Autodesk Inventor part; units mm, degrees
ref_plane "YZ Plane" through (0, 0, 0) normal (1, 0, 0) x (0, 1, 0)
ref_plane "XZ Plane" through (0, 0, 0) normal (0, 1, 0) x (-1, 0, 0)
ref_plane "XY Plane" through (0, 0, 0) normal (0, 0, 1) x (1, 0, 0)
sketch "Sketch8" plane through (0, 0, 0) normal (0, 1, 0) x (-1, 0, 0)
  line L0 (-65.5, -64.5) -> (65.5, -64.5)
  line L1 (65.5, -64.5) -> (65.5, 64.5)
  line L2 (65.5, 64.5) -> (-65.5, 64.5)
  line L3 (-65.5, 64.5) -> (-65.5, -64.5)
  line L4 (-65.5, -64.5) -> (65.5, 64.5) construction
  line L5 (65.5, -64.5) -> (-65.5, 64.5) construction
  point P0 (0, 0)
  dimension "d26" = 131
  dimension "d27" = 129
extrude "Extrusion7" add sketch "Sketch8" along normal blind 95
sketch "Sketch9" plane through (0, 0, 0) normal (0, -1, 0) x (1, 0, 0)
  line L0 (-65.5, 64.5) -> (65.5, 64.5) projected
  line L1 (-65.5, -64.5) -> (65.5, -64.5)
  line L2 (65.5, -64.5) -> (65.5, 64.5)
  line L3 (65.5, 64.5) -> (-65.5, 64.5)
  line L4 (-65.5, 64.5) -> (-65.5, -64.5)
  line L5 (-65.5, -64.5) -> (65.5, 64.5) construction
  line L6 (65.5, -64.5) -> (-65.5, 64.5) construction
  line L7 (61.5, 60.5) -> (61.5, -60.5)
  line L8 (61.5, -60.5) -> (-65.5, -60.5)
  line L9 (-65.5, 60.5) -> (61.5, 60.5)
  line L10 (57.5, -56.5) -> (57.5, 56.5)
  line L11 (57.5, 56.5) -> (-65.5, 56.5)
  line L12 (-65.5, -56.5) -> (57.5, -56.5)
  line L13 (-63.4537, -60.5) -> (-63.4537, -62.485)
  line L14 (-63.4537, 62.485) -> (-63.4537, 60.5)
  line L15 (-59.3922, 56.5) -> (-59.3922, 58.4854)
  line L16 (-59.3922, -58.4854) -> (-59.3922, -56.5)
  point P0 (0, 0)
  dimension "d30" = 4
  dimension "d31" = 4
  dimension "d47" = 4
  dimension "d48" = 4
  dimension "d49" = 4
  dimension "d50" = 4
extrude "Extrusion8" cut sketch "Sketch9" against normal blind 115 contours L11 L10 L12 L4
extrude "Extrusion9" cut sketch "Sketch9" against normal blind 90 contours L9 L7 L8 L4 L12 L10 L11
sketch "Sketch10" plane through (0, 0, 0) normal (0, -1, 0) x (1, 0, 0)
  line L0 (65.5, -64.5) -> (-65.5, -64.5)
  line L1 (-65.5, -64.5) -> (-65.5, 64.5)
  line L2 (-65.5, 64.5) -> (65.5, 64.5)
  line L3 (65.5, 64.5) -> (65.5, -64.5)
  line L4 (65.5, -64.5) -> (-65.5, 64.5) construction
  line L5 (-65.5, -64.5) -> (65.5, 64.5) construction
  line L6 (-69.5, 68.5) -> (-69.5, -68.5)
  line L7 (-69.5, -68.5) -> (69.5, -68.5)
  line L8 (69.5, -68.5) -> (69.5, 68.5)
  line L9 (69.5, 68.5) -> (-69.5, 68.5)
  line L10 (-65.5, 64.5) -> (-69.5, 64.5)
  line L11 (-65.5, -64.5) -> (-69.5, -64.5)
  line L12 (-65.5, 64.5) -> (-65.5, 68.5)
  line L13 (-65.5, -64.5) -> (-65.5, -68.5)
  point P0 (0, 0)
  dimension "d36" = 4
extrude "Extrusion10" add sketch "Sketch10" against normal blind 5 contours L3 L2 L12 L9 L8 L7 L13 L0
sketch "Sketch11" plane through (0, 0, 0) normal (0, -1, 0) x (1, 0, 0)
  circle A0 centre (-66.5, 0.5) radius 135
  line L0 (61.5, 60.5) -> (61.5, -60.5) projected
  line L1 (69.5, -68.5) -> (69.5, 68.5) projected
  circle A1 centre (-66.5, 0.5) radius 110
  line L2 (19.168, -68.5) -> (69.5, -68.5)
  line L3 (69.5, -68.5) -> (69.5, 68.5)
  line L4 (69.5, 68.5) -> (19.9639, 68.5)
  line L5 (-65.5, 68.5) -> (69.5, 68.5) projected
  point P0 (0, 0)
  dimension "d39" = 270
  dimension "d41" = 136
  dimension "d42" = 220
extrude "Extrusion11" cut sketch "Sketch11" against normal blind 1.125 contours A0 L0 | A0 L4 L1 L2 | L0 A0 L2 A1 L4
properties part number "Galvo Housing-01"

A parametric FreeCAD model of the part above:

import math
import FreeCAD as App
import Part
import Sketcher

V = App.Vector

doc = App.newDocument("Part")
body = doc.addObject("PartDesign::Body", "Body")

# Sketch on XZ plane
sketch1 = doc.addObject("Sketcher::SketchObject", "Sketch")
body.addObject(sketch1)
sketch1.AttachmentSupport = (doc.XZ_Plane, [""])
sketch1.MapMode = "FlatFace"
sketch1.addGeometry(Part.LineSegment(V(66, 64, 0), V(66, -64, 0)), False)
sketch1.addGeometry(Part.LineSegment(V(66, -64, 0), V(-66, -64, 0)), False)
sketch1.addGeometry(Part.LineSegment(V(-66, -64, 0), V(-66, 64, 0)), False)
sketch1.addGeometry(Part.LineSegment(V(-66, 64, 0), V(66, 64, 0)), False)
sketch1.addConstraint(Sketcher.Constraint("Coincident", 0, 2, 1, 1))
sketch1.addConstraint(Sketcher.Constraint("Coincident", 1, 2, 2, 1))
sketch1.addConstraint(Sketcher.Constraint("Coincident", 2, 2, 3, 1))
sketch1.addConstraint(Sketcher.Constraint("Coincident", 3, 2, 0, 1))
sketch1.addConstraint(Sketcher.Constraint("Vertical", 0))
sketch1.addConstraint(Sketcher.Constraint("Horizontal", 1))
sketch1.addConstraint(Sketcher.Constraint("Vertical", 2))
sketch1.addConstraint(Sketcher.Constraint("Horizontal", 3))
sketch1.addConstraint(Sketcher.Constraint("Symmetric", 0, 2, 2, 2, -1, 1))
sketch1.addConstraint(Sketcher.Constraint("DistanceX", 1, 2, 1, 1, 131.0))
sketch1.addConstraint(Sketcher.Constraint("DistanceY", 0, 2, 0, 1, 129.0))
pad1 = doc.addObject("PartDesign::Pad", "Pad")
body.addObject(pad1)
pad1.Profile = sketch1
pad1.Length = 95
pad1.Reversed = True

# Sketch on XZ plane
sketch2 = doc.addObject("Sketcher::SketchObject", "Sketch001")
body.addObject(sketch2)
sketch2.AttachmentSupport = (doc.XZ_Plane, [""])
sketch2.MapMode = "FlatFace"
sketch2.addGeometry(Part.LineSegment(V(58, 56, 0), V(-66, 56, 0)), False)
sketch2.addGeometry(Part.LineSegment(V(-66, 56, 0), V(-66, -56, 0)), False)
sketch2.addGeometry(Part.LineSegment(V(-66, -56, 0), V(58, -56, 0)), False)
sketch2.addGeometry(Part.LineSegment(V(58, -56, 0), V(58, 56, 0)), False)
sketch2.addConstraint(Sketcher.Constraint("Coincident", 0, 2, 1, 1))
sketch2.addConstraint(Sketcher.Constraint("Coincident", 1, 2, 2, 1))
sketch2.addConstraint(Sketcher.Constraint("Coincident", 2, 2, 3, 1))
sketch2.addConstraint(Sketcher.Constraint("Coincident", 3, 2, 0, 1))
sketch2.addConstraint(Sketcher.Constraint("Horizontal", 0))
sketch2.addConstraint(Sketcher.Constraint("Vertical", 1))
sketch2.addConstraint(Sketcher.Constraint("Horizontal", 2))
sketch2.addConstraint(Sketcher.Constraint("Vertical", 3))
sketch2.addConstraint(Sketcher.Constraint("DistanceX", 0, 2, 0, 1, 123.0))
sketch2.addConstraint(Sketcher.Constraint("DistanceY", 1, 2, 1, 1, 113.0))
sketch2.addConstraint(Sketcher.Constraint("DistanceX", 0, 2, -1, 1, 65.5))
sketch2.addConstraint(Sketcher.Constraint("DistanceY", -1, 1, 0, 2, 56.5))
pocket1 = doc.addObject("PartDesign::Pocket", "Pocket")
body.addObject(pocket1)
pocket1.Profile = sketch2
pocket1.Length = 115

# Sketch on XZ plane
sketch3 = doc.addObject("Sketcher::SketchObject", "Sketch002")
body.addObject(sketch3)
sketch3.AttachmentSupport = (doc.XZ_Plane, [""])
sketch3.MapMode = "FlatFace"
sketch3.addGeometry(Part.LineSegment(V(61.5, 60.5, 0), V(-65.5, 60.5, 0)), False)
sketch3.addGeometry(Part.LineSegment(V(-65.5, 60.5, 0), V(-65.5, 56.5, 0)), False)
sketch3.addGeometry(Part.LineSegment(V(-65.5, 56.5, 0), V(57.5, 56.5, 0)), False)
sketch3.addGeometry(Part.LineSegment(V(57.5, 56.5, 0), V(57.5, -56.5, 0)), False)
sketch3.addGeometry(Part.LineSegment(V(57.5, -56.5, 0), V(-65.5, -56.5, 0)), False)
sketch3.addGeometry(Part.LineSegment(V(-65.5, -56.5, 0), V(-65.5, -60.5, 0)), False)
sketch3.addGeometry(Part.LineSegment(V(-65.5, -60.5, 0), V(61.5, -60.5, 0)), False)
sketch3.addGeometry(Part.LineSegment(V(61.5, -60.5, 0), V(61.5, 60.5, 0)), False)
sketch3.addConstraint(Sketcher.Constraint("Coincident", 0, 2, 1, 1))
sketch3.addConstraint(Sketcher.Constraint("Coincident", 1, 2, 2, 1))
sketch3.addConstraint(Sketcher.Constraint("Coincident", 2, 2, 3, 1))
sketch3.addConstraint(Sketcher.Constraint("Coincident", 3, 2, 4, 1))
sketch3.addConstraint(Sketcher.Constraint("Coincident", 4, 2, 5, 1))
sketch3.addConstraint(Sketcher.Constraint("Coincident", 5, 2, 6, 1))
sketch3.addConstraint(Sketcher.Constraint("Coincident", 6, 2, 7, 1))
sketch3.addConstraint(Sketcher.Constraint("Coincident", 7, 2, 0, 1))
sketch3.addConstraint(Sketcher.Constraint("Horizontal", 0))
sketch3.addConstraint(Sketcher.Constraint("Vertical", 1))
sketch3.addConstraint(Sketcher.Constraint("Horizontal", 2))
sketch3.addConstraint(Sketcher.Constraint("Vertical", 3))
sketch3.addConstraint(Sketcher.Constraint("Horizontal", 4))
sketch3.addConstraint(Sketcher.Constraint("Vertical", 5))
sketch3.addConstraint(Sketcher.Constraint("Horizontal", 6))
sketch3.addConstraint(Sketcher.Constraint("Vertical", 7))
sketch3.addConstraint(Sketcher.Constraint("Symmetric", 1, 2, 4, 2, -1))
sketch3.addConstraint(Sketcher.Constraint("Equal", 1, 5))
sketch3.addConstraint(Sketcher.Constraint("DistanceY", 1, 2, 1, 1, 4.0))
sketch3.addConstraint(Sketcher.Constraint("DistanceX", 3, 2, 6, 2, 4.0))
sketch3.addConstraint(Sketcher.Constraint("DistanceX", 0, 2, 0, 1, 127.0))
sketch3.addConstraint(Sketcher.Constraint("DistanceY", 3, 2, 3, 1, 113.0))
sketch3.addConstraint(Sketcher.Constraint("DistanceX", 0, 2, -1, 1, 65.5))
pocket2 = doc.addObject("PartDesign::Pocket", "Pocket001")
body.addObject(pocket2)
pocket2.Profile = sketch3
pocket2.Length = 90

# Sketch on XZ plane
sketch4 = doc.addObject("Sketcher::SketchObject", "Sketch003")
body.addObject(sketch4)
sketch4.AttachmentSupport = (doc.XZ_Plane, [""])
sketch4.MapMode = "FlatFace"
sketch4.addGeometry(Part.LineSegment(V(65.5, 64.5, 0), V(65.5, -64.5, 0)), False)
sketch4.addGeometry(Part.LineSegment(V(65.5, -64.5, 0), V(-65.5, -64.5, 0)), False)
sketch4.addGeometry(Part.LineSegment(V(-65.5, -64.5, 0), V(-65.5, -68.5, 0)), False)
sketch4.addGeometry(Part.LineSegment(V(-65.5, -68.5, 0), V(69.5, -68.5, 0)), False)
sketch4.addGeometry(Part.LineSegment(V(69.5, -68.5, 0), V(69.5, 68.5, 0)), False)
sketch4.addGeometry(Part.LineSegment(V(69.5, 68.5, 0), V(-65.5, 68.5, 0)), False)
sketch4.addGeometry(Part.LineSegment(V(-65.5, 68.5, 0), V(-65.5, 64.5, 0)), False)
sketch4.addGeometry(Part.LineSegment(V(-65.5, 64.5, 0), V(65.5, 64.5, 0)), False)
sketch4.addConstraint(Sketcher.Constraint("Coincident", 0, 2, 1, 1))
sketch4.addConstraint(Sketcher.Constraint("Coincident", 1, 2, 2, 1))
sketch4.addConstraint(Sketcher.Constraint("Coincident", 2, 2, 3, 1))
sketch4.addConstraint(Sketcher.Constraint("Coincident", 3, 2, 4, 1))
sketch4.addConstraint(Sketcher.Constraint("Coincident", 4, 2, 5, 1))
sketch4.addConstraint(Sketcher.Constraint("Coincident", 5, 2, 6, 1))
sketch4.addConstraint(Sketcher.Constraint("Coincident", 6, 2, 7, 1))
sketch4.addConstraint(Sketcher.Constraint("Coincident", 7, 2, 0, 1))
sketch4.addConstraint(Sketcher.Constraint("Vertical", 0))
sketch4.addConstraint(Sketcher.Constraint("Horizontal", 1))
sketch4.addConstraint(Sketcher.Constraint("Vertical", 2))
sketch4.addConstraint(Sketcher.Constraint("Horizontal", 3))
sketch4.addConstraint(Sketcher.Constraint("Vertical", 4))
sketch4.addConstraint(Sketcher.Constraint("Horizontal", 5))
sketch4.addConstraint(Sketcher.Constraint("Vertical", 6))
sketch4.addConstraint(Sketcher.Constraint("Horizontal", 7))
sketch4.addConstraint(Sketcher.Constraint("Symmetric", 0, 2, 6, 2, -1, 1))
sketch4.addConstraint(Sketcher.Constraint("Symmetric", 2, 2, 5, 2, -1))
sketch4.addConstraint(Sketcher.Constraint("DistanceY", 2, 2, 2, 1, 4.0))
sketch4.addConstraint(Sketcher.Constraint("DistanceX", 0, 2, 3, 2, 4.0))
sketch4.addConstraint(Sketcher.Constraint("DistanceX", 1, 2, 1, 1, 131.0))
sketch4.addConstraint(Sketcher.Constraint("DistanceY", 0, 2, 0, 1, 129.0))
pad2 = doc.addObject("PartDesign::Pad", "Pad001")
body.addObject(pad2)
pad2.Profile = sketch4
pad2.Length = 5
pad2.Reversed = True

# Sketch on XZ plane
sketch5 = doc.addObject("Sketcher::SketchObject", "Sketch004")
body.addObject(sketch5)
sketch5.AttachmentSupport = (doc.XZ_Plane, [""])
sketch5.MapMode = "FlatFace"
sketch5.addGeometry(Part.LineSegment(V(70, 68, 0), V(20, 68, 0)), False)
sketch5.addGeometry(Part.ArcOfCircle(Part.Circle(V(-66, 0, 0), V(0, 0, 1), 110), math.radians(-39), math.radians(38)), False)
sketch5.addGeometry(Part.LineSegment(V(19, -68, 0), V(70, -68, 0)), False)
sketch5.addGeometry(Part.LineSegment(V(70, -68, 0), V(70, 68, 0)), False)
sketch5.addConstraint(Sketcher.Constraint("Coincident", 0, 2, 1, 2))
sketch5.addConstraint(Sketcher.Constraint("Coincident", 1, 1, 2, 1))
sketch5.addConstraint(Sketcher.Constraint("Coincident", 2, 2, 3, 1))
sketch5.addConstraint(Sketcher.Constraint("Coincident", 3, 2, 0, 1))
sketch5.addConstraint(Sketcher.Constraint("Horizontal", 0))
sketch5.addConstraint(Sketcher.Constraint("Horizontal", 2))
sketch5.addConstraint(Sketcher.Constraint("Vertical", 3))
sketch5.addConstraint(Sketcher.Constraint("Radius", 1, 110.0))
sketch5.addConstraint(Sketcher.Constraint("DistanceX", 1, 3, 2, 2, 136.0))
sketch5.addConstraint(Sketcher.Constraint("DistanceY", 3, 1, 3, 2, 137.0))
sketch5.addConstraint(Sketcher.Constraint("DistanceY", 1, 3, 0, 2, 68.0))
sketch5.addConstraint(Sketcher.Constraint("DistanceX", 1, 3, -1, 1, 66.5))
sketch5.addConstraint(Sketcher.Constraint("DistanceY", -1, 1, 1, 3, 0.5))
pocket3 = doc.addObject("PartDesign::Pocket", "Pocket002")
body.addObject(pocket3)
pocket3.Profile = sketch5
pocket3.Length = 1.125

doc.recompute()
